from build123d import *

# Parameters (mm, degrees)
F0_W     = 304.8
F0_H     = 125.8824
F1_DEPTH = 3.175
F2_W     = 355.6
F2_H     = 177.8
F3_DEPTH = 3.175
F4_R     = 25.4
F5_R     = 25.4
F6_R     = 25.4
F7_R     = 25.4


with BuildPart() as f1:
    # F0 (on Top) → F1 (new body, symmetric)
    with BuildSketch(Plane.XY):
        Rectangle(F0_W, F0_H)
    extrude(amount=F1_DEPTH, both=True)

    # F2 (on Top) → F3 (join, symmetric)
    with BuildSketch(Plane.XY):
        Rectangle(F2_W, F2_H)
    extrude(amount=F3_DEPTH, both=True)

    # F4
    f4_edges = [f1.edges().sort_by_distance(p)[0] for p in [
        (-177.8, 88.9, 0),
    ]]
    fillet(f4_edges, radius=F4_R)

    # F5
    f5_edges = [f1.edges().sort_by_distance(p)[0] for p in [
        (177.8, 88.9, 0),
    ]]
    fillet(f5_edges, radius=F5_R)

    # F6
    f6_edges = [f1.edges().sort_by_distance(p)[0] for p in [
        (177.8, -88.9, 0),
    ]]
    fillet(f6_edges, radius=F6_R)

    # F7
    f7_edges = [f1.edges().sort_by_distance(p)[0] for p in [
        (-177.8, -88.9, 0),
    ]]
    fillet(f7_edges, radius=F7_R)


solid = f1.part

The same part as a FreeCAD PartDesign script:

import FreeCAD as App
import Part
import Sketcher
Q = App.Units.Quantity


def edges_at(feature, points):
    """Names of the edges that pass closest to the given points."""
    edges = feature.Shape.Edges
    near = lambda p: min(range(len(edges)), key=lambda i: edges[i].distToShape(Part.Vertex(*p))[0])
    return sorted({f"Edge{near(p) + 1}" for p in points})

doc = App.newDocument("Part")
body = doc.addObject("PartDesign::Body", "Body")

# Sketch on XY plane
sketch1 = doc.addObject("Sketcher::SketchObject", "Sketch")
body.addObject(sketch1)
sketch1.AttachmentSupport = (doc.XY_Plane, [""])
sketch1.MapMode = "FlatFace"
sketch1.addGeometry(Part.LineSegment(App.Vector(-152.4, 62.9412, 0), App.Vector(-152.4, -62.9412, 0)), False)
sketch1.addGeometry(Part.LineSegment(App.Vector(-152.4, -62.9412, 0), App.Vector(152.4, -62.9412, 0)), False)
sketch1.addGeometry(Part.LineSegment(App.Vector(152.4, -62.9412, 0), App.Vector(152.4, 62.9412, 0)), False)
sketch1.addGeometry(Part.LineSegment(App.Vector(152.4, 62.9412, 0), App.Vector(-152.4, 62.9412, 0)), False)
sketch1.addConstraint(Sketcher.Constraint("Coincident", 0, 2, 1, 1))
sketch1.addConstraint(Sketcher.Constraint("Coincident", 1, 2, 2, 1))
sketch1.addConstraint(Sketcher.Constraint("Coincident", 2, 2, 3, 1))
sketch1.addConstraint(Sketcher.Constraint("Coincident", 3, 2, 0, 1))
sketch1.addConstraint(Sketcher.Constraint("Vertical", 0))
sketch1.addConstraint(Sketcher.Constraint("Horizontal", 1))
sketch1.addConstraint(Sketcher.Constraint("Vertical", 2))
sketch1.addConstraint(Sketcher.Constraint("Horizontal", 3))
sketch1.addConstraint(Sketcher.Constraint("Symmetric", 0, 2, 2, 2, -1, 1))
sketch1.addConstraint(Sketcher.Constraint("DistanceX", 1, 1, 1, 2, Q("12 in")))
sketch1.addConstraint(Sketcher.Constraint("DistanceY", 0, 2, 0, 1, Q("4.956 in")))
pad1 = doc.addObject("PartDesign::Pad", "Pad")
body.addObject(pad1)
pad1.Profile = sketch1
pad1.Length = Q("0.25 in")
pad1.Midplane = True

# Sketch on XY plane
sketch2 = doc.addObject("Sketcher::SketchObject", "Sketch001")
body.addObject(sketch2)
sketch2.AttachmentSupport = (doc.XY_Plane, [""])
sketch2.MapMode = "FlatFace"
sketch2.addGeometry(Part.LineSegment(App.Vector(-177.8, 88.9, 0), App.Vector(-177.8, -88.9, 0)), False)
sketch2.addGeometry(Part.LineSegment(App.Vector(-177.8, -88.9, 0), App.Vector(177.8, -88.9, 0)), False)
sketch2.addGeometry(Part.LineSegment(App.Vector(177.8, -88.9, 0), App.Vector(177.8, 88.9, 0)), False)
sketch2.addGeometry(Part.LineSegment(App.Vector(177.8, 88.9, 0), App.Vector(-177.8, 88.9, 0)), False)
sketch2.addConstraint(Sketcher.Constraint("Coincident", 0, 2, 1, 1))
sketch2.addConstraint(Sketcher.Constraint("Coincident", 1, 2, 2, 1))
sketch2.addConstraint(Sketcher.Constraint("Coincident", 2, 2, 3, 1))
sketch2.addConstraint(Sketcher.Constraint("Coincident", 3, 2, 0, 1))
sketch2.addConstraint(Sketcher.Constraint("Vertical", 0))
sketch2.addConstraint(Sketcher.Constraint("Horizontal", 1))
sketch2.addConstraint(Sketcher.Constraint("Vertical", 2))
sketch2.addConstraint(Sketcher.Constraint("Horizontal", 3))
sketch2.addConstraint(Sketcher.Constraint("Symmetric", 0, 2, 2, 2, -1, 1))
sketch2.addConstraint(Sketcher.Constraint("DistanceX", 1, 1, 1, 2, Q("14 in")))
sketch2.addConstraint(Sketcher.Constraint("DistanceY", 0, 2, 0, 1, Q("7 in")))
pad2 = doc.addObject("PartDesign::Pad", "Pad001")
body.addObject(pad2)
pad2.Profile = sketch2
pad2.Length = Q("0.25 in")
pad2.Midplane = True
doc.recompute()

fillet = doc.addObject("PartDesign::Fillet", "Fillet")
body.addObject(fillet)
fillet.Base = (pad2, edges_at(pad2, [(-177.8, 88.9, 0)]))
fillet.Radius = Q("1 in")
doc.recompute()

fillet2 = doc.addObject("PartDesign::Fillet", "Fillet001")
body.addObject(fillet2)
fillet2.Base = (fillet, edges_at(fillet, [(177.8, 88.9, 0)]))
fillet2.Radius = Q("1 in")
doc.recompute()

fillet3 = doc.addObject("PartDesign::Fillet", "Fillet002")
body.addObject(fillet3)
fillet3.Base = (fillet2, edges_at(fillet2, [(177.8, -88.9, 0)]))
fillet3.Radius = Q("1 in")
doc.recompute()

fillet4 = doc.addObject("PartDesign::Fillet", "Fillet003")
body.addObject(fillet4)
fillet4.Base = (fillet3, edges_at(fillet3, [(-177.8, -88.9, 0)]))
fillet4.Radius = Q("1 in")

doc.recompute()
